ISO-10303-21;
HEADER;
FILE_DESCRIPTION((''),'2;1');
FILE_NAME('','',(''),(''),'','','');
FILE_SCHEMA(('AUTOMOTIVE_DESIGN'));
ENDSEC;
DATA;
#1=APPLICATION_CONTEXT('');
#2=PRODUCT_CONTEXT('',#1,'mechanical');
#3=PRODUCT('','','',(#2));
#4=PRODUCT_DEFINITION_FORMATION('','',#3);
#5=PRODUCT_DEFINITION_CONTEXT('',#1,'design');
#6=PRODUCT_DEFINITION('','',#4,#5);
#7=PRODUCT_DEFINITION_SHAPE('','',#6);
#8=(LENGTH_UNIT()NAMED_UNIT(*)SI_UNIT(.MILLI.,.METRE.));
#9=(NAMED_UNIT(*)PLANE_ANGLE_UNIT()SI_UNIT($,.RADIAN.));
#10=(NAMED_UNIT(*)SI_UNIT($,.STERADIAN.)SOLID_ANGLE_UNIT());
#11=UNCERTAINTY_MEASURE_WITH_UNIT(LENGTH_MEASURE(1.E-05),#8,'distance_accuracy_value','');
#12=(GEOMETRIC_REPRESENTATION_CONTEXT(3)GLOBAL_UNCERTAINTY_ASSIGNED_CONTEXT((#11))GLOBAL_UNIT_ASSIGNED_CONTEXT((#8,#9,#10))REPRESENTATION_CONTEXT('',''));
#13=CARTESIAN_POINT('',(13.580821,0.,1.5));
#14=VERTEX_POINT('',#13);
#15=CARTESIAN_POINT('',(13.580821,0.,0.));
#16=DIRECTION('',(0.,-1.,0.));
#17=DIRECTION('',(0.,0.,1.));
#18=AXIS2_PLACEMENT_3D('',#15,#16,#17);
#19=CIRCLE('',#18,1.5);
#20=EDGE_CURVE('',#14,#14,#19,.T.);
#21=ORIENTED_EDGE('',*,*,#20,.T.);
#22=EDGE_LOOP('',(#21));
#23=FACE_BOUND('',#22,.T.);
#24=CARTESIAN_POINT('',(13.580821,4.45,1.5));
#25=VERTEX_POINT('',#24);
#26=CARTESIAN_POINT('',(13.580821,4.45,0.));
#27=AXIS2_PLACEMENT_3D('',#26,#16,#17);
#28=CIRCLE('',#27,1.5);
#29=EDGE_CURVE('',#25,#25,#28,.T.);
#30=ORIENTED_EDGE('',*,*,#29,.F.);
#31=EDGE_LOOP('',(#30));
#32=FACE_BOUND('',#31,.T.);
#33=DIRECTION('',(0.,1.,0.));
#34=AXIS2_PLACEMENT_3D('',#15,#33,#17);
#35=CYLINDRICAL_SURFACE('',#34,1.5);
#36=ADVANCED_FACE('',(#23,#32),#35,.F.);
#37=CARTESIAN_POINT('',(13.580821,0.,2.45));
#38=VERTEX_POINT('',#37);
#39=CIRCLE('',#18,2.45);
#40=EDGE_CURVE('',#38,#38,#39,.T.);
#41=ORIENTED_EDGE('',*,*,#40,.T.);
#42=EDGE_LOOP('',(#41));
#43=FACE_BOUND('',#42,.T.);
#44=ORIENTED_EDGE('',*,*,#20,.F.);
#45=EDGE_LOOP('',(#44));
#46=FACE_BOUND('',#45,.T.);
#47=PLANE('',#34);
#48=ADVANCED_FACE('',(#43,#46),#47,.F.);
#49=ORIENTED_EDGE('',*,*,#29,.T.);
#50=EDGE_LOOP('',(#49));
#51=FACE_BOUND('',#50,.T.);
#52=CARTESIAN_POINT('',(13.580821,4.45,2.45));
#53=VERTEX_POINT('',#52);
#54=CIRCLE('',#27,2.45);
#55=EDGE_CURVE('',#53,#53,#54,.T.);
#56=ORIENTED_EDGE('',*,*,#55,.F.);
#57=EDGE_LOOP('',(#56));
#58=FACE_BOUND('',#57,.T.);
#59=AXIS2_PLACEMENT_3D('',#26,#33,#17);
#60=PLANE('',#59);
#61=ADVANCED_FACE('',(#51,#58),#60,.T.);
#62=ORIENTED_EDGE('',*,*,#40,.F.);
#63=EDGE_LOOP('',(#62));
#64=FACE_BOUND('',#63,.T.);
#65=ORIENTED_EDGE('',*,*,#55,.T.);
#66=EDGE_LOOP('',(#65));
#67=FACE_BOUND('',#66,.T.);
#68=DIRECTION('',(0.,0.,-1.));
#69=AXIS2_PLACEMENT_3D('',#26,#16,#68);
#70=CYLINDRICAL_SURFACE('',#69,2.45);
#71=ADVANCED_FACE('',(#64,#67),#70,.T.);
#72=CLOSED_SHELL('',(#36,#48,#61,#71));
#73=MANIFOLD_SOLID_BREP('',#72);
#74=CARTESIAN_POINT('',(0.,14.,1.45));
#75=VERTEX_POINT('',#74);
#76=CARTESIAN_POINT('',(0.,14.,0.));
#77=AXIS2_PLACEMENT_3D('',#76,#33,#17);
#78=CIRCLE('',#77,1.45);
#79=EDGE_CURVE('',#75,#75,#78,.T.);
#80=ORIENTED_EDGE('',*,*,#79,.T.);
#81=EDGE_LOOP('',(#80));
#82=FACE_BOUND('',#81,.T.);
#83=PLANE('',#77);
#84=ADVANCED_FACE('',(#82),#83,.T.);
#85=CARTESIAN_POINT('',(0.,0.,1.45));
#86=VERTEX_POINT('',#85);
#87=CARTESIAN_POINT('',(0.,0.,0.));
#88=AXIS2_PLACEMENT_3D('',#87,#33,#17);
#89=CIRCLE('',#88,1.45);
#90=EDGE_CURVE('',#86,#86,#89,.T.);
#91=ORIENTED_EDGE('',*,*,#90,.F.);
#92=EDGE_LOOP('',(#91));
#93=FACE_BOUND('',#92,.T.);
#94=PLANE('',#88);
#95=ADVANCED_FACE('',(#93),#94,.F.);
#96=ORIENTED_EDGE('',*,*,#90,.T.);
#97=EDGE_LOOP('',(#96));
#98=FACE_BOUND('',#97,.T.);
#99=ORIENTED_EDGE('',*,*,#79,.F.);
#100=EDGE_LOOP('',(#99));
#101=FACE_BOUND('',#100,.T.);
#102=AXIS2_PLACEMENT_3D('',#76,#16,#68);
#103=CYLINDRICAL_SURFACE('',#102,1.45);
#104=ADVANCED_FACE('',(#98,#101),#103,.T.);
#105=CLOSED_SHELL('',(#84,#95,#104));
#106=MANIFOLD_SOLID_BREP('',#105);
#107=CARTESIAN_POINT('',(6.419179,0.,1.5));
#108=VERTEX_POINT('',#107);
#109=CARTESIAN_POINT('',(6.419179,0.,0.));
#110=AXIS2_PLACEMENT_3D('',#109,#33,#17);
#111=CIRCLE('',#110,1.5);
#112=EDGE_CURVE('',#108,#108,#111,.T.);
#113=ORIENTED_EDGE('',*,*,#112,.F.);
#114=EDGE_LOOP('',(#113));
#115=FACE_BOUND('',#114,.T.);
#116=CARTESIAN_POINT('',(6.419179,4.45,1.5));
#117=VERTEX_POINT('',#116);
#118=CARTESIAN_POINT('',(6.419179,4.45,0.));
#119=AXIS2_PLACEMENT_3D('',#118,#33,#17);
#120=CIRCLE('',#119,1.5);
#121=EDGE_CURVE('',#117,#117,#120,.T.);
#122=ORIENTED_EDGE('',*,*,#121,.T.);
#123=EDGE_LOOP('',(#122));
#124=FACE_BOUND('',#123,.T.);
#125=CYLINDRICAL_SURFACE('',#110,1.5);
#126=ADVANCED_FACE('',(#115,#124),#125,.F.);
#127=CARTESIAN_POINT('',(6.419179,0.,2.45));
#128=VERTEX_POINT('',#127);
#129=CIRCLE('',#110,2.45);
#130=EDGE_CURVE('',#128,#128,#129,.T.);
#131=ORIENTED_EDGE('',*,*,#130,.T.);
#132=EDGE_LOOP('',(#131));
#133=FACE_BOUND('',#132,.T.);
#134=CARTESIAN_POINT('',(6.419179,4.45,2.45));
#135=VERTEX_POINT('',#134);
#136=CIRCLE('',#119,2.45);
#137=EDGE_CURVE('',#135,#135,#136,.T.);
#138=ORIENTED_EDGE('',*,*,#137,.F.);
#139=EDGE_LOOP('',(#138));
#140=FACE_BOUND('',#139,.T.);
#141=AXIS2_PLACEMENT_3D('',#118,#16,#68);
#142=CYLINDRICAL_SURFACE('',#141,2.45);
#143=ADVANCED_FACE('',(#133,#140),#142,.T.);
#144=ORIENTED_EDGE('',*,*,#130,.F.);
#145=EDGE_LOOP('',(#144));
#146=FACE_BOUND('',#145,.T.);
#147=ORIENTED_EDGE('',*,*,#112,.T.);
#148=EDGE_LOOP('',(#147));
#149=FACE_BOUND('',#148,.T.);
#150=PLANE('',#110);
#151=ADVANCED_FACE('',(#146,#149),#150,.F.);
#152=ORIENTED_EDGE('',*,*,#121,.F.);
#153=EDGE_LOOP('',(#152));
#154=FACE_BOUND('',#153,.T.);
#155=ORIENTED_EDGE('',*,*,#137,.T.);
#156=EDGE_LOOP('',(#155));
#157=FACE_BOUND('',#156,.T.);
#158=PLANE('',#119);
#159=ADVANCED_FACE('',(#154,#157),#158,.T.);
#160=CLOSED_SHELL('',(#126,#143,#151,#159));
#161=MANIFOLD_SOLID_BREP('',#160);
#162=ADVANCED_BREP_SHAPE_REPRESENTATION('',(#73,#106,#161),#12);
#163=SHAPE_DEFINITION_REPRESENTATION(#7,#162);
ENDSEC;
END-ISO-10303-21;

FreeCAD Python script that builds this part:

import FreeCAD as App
import Part
import Sketcher

doc = App.newDocument("Part")
params = doc.addObject("Spreadsheet::Sheet", "Params")
for row, (alias, value) in enumerate([
    ("sketch1_diameter", "2.9 mm"),
    ("pad1_length", "14 mm"),
    ("sketch2_diameter", "4.9 mm"),
    ("pad2_length", "4.45 mm"),
    ("sketch3_diameter", "3 mm"),
], start=1):
    params.set(f"A{row}", alias)
    params.set(f"B{row}", "=" + value)
    params.setAlias(f"B{row}", alias)

body = doc.addObject("PartDesign::Body", "Body")

sketch1 = body.newObject("Sketcher::SketchObject", "Sketch")
sketch1.AttachmentSupport = (doc.getObject("XZ_Plane"), [""])
sketch1.MapMode = "FlatFace"
sketch1.addGeometry(Part.Circle(App.Vector(0, 0, 0), App.Vector(0, 0, 1), 1.4), False)
sketch1.addConstraint(Sketcher.Constraint("Coincident", 0, 3, -1, 1))
sketch1.addConstraint(Sketcher.Constraint("Diameter", 0, 2.9))
sketch1.setExpression("Constraints[1]", "Params.sketch1_diameter")
pad1 = body.newObject("PartDesign::Pad", "Pad")
pad1.Profile = sketch1
pad1.setExpression("Length", "Params.pad1_length")
pad1.Reversed = True
body2 = doc.addObject("PartDesign::Body", "Body001")

sketch2 = body2.newObject("Sketcher::SketchObject", "Sketch001")
sketch2.AttachmentSupport = (doc.getObject("XZ_Plane001"), [""])
sketch2.MapMode = "FlatFace"
sketch2.addGeometry(Part.Circle(App.Vector(6.4, 0, 0), App.Vector(0, 0, 1), 2.5), False)
sketch2.addConstraint(Sketcher.Constraint("PointOnObject", 0, 3, -1))
sketch2.addConstraint(Sketcher.Constraint("Diameter", 0, 4.9))
sketch2.addConstraint(Sketcher.Constraint("DistanceX", -1, 1, 0, 3, 6.419179))
sketch2.setExpression("Constraints[1]", "Params.sketch2_diameter")
pad2 = body2.newObject("PartDesign::Pad", "Pad001")
pad2.Profile = sketch2
pad2.setExpression("Length", "Params.pad2_length")
pad2.Reversed = True

sketch3 = body2.newObject("Sketcher::SketchObject", "Sketch002")
sketch3.AttachmentSupport = (doc.getObject("XZ_Plane001"), [""])
sketch3.MapMode = "FlatFace"
sketch3.AttachmentOffset = App.Placement(App.Vector(0, 0, -4.45), App.Rotation())
sketch3.addGeometry(Part.Circle(App.Vector(6.4, 0, 0), App.Vector(0, 0, 1), 1.5), False)
sketch3.addConstraint(Sketcher.Constraint("PointOnObject", 0, 3, -1))
sketch3.addConstraint(Sketcher.Constraint("Diameter", 0, 3.0))
sketch3.addConstraint(Sketcher.Constraint("DistanceX", -1, 1, 0, 3, 6.419179))
sketch3.setExpression("Constraints[1]", "Params.sketch3_diameter")
pocket1 = body2.newObject("PartDesign::Pocket", "Pocket")
pocket1.Profile = sketch3
pocket1.Type = "ThroughAll"
pocket1.Reversed = True
body3 = doc.addObject("PartDesign::Body", "Body002")
doc.recompute()

mirroring = doc.addObject("Part::Mirroring", "Mirroring")
mirroring.Source = body2
mirroring.Base = App.Vector(10, 0, 0)
mirroring.Normal = App.Vector(1, 0, 0)
body3.BaseFeature = mirroring
doc.recompute()
mirroring.Visibility = False

doc.recompute()
